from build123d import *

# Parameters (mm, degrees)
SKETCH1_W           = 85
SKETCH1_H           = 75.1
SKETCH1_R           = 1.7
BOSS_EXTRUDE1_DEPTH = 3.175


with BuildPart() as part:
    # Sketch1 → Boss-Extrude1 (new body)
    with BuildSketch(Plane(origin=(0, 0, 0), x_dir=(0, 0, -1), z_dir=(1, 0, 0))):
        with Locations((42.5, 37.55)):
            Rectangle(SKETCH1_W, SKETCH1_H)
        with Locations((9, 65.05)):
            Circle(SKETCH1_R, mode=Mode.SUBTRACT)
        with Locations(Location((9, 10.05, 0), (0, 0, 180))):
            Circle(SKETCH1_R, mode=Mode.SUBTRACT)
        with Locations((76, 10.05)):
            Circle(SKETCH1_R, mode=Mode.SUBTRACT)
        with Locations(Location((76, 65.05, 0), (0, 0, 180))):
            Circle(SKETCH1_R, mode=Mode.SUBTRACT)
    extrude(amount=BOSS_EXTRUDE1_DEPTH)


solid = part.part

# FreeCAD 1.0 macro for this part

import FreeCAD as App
import Part
import Sketcher
from FreeCAD import Vector


def add_polygon(sketch, points):
    """Adds a closed chain of lines whose ends are joined by coincident constraints."""
    first, n = sketch.GeometryCount, len(points)
    for a, b in zip(points, points[1:] + points[:1]):
        sketch.addGeometry(Part.LineSegment(App.Vector(*a, 0), App.Vector(*b, 0)), False)
    for i in range(n):
        sketch.addConstraint(Sketcher.Constraint("Coincident", first + i, 2, first + (i + 1) % n, 1))

doc = App.newDocument("Part")
params = doc.addObject("Spreadsheet::Sheet", "Params")
for row, (alias, value) in enumerate([
    ("sketch1_diameter", "3.4 mm"),
    ("sketch1_height", "85 mm"),
    ("sketch1_width", "75.1 mm"),
    ("pad1_length", "3.175 mm"),
], start=1):
    params.set(f"A{row}", alias)
    params.set(f"B{row}", "=" + value)
    params.setAlias(f"B{row}", alias)

body = doc.addObject("PartDesign::Body", "Body")

# Sketch on YZ plane
sketch1 = body.newObject("Sketcher::SketchObject", "Sketch")
sketch1.AttachmentSupport = (doc.getObject("YZ_Plane"), [""])
sketch1.MapMode = "FlatFace"
add_polygon(sketch1, [(75.1, 0), (0, 0), (0, -85), (75.1, -85)])  # lines 0-3
sketch1.addGeometry(Part.Circle(Vector(10.1, -9, 0), Vector(0, 0, 1), 1.7), False)  # 4
sketch1.addGeometry(Part.Circle(Vector(10.1, -76, 0), Vector(0, 0, 1), 1.7), False)  # 5
sketch1.addGeometry(Part.Circle(Vector(65, -9, 0), Vector(0, 0, 1), 1.7), False)  # 6
sketch1.addGeometry(Part.Circle(Vector(65, -76, 0), Vector(0, 0, 1), 1.7), False)  # 7
sketch1.addConstraint(Sketcher.Constraint("Horizontal", 0))
sketch1.addConstraint(Sketcher.Constraint("Vertical", 1))
sketch1.addConstraint(Sketcher.Constraint("Horizontal", 2))
sketch1.addConstraint(Sketcher.Constraint("Vertical", 3))
sketch1.addConstraint(Sketcher.Constraint("Coincident", 0, 2, -1, 1))
sketch1.addConstraint(Sketcher.Constraint("Equal", 4, 5))
sketch1.addConstraint(Sketcher.Constraint("Equal", 5, 6))
sketch1.addConstraint(Sketcher.Constraint("Equal", 6, 7))
sketch1.addConstraint(Sketcher.Constraint("Horizontal", 4, 3, 6, 3))
sketch1.addConstraint(Sketcher.Constraint("Horizontal", 5, 3, 7, 3))
sketch1.addConstraint(Sketcher.Constraint("Vertical", 4, 3, 5, 3))
sketch1.addConstraint(Sketcher.Constraint("Vertical", 6, 3, 7, 3))
sketch1.addConstraint(Sketcher.Constraint("Diameter", 4, 3.4))
sketch1.addConstraint(Sketcher.Constraint("DistanceY", 1, 2, 1, 1, 85.0))
sketch1.addConstraint(Sketcher.Constraint("DistanceX", 0, 2, 0, 1, 75.1))
sketch1.addConstraint(Sketcher.Constraint("DistanceY", 4, 3, -1, 1, 9.0))
sketch1.addConstraint(Sketcher.Constraint("DistanceY", 5, 3, -1, 1, 76.0))
sketch1.addConstraint(Sketcher.Constraint("DistanceX", 4, 3, 6, 3, 55.0))
sketch1.addConstraint(Sketcher.Constraint("DistanceX", -1, 1, 4, 3, 10.05))
sketch1.setExpression("Constraints[16]", "Params.sketch1_diameter")
sketch1.setExpression("Constraints[17]", "Params.sketch1_height")
sketch1.setExpression("Constraints[18]", "Params.sketch1_width")
pad1 = body.newObject("PartDesign::Pad", "Pad")
pad1.Profile = sketch1
pad1.setExpression("Length", "Params.pad1_length")

doc.recompute()
